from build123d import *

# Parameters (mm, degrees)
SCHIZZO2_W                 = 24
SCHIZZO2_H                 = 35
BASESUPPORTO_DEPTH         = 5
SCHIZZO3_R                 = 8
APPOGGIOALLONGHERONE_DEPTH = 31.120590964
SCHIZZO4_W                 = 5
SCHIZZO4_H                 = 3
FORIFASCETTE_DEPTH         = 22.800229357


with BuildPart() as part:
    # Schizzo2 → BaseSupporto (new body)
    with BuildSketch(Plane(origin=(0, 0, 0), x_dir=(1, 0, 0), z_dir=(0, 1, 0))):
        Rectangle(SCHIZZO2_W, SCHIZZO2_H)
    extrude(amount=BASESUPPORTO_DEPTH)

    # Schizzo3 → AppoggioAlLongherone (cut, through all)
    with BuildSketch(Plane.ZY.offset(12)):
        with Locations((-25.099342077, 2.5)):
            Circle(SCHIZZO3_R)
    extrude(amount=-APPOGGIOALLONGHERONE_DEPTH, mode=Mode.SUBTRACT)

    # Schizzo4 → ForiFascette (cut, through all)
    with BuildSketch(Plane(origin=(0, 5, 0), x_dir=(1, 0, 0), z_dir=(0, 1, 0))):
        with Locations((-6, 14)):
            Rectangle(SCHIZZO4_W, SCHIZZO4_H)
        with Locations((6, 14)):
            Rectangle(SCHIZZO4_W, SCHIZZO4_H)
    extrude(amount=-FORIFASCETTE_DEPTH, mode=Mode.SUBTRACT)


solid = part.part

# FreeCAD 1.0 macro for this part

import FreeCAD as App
import Part
import Sketcher
from FreeCAD import Vector


def add_polygon(sketch, points):
    """Adds a closed chain of lines whose ends are joined by coincident constraints."""
    first, n = sketch.GeometryCount, len(points)
    for a, b in zip(points, points[1:] + points[:1]):
        sketch.addGeometry(Part.LineSegment(App.Vector(*a, 0), App.Vector(*b, 0)), False)
    for i in range(n):
        sketch.addConstraint(Sketcher.Constraint("Coincident", first + i, 2, first + (i + 1) % n, 1))

doc = App.newDocument("Part")
body = doc.addObject("PartDesign::Body", "Body")

# Sketch on XZ plane
sketch1 = body.newObject("Sketcher::SketchObject", "Sketch")
sketch1.AttachmentSupport = (doc.getObject("XZ_Plane"), [""])
sketch1.MapMode = "FlatFace"
add_polygon(sketch1, [(-12, -18), (-12, 18), (12, 18), (12, -18)])  # lines 0-3
sketch1.addConstraint([
    Sketcher.Constraint("Vertical", 0),
    Sketcher.Constraint("Horizontal", 1),
    Sketcher.Constraint("Vertical", 2),
    Sketcher.Constraint("Horizontal", 3),
    Sketcher.Constraint("Symmetric", 0, 2, 2, 2, -1, 1),
    Sketcher.Constraint("DistanceX", 1, 1, 1, 2, 24.0),
    Sketcher.Constraint("DistanceY", 0, 1, 0, 2, 35.0),
])
pad1 = body.newObject("PartDesign::Pad", "Pad")
pad1.Profile = sketch1
pad1.Length = 5
pad1.Reversed = True

# Sketch on YZ plane
sketch2 = body.newObject("Sketcher::SketchObject", "Sketch001")
sketch2.AttachmentSupport = (doc.getObject("YZ_Plane"), [""])
sketch2.MapMode = "FlatFace"
sketch2.AttachmentOffset = App.Placement(Vector(0, 0, -12), App.Rotation())
sketch2.addGeometry(Part.Circle(Vector(2, -25, 0), Vector(0, 0, 1), 8), False)
sketch2.addConstraint([
    Sketcher.Constraint("Diameter", 0, 16.0),
    Sketcher.Constraint("DistanceX", -1, 1, 0, 3, 2.5),
    Sketcher.Constraint("DistanceY", 0, 3, -1, 1, 25.099342),
])
pocket1 = body.newObject("PartDesign::Pocket", "Pocket")
pocket1.Profile = sketch2
pocket1.Type = "ThroughAll"
pocket1.Reversed = True

# Sketch on XZ plane
sketch3 = body.newObject("Sketcher::SketchObject", "Sketch002")
sketch3.AttachmentSupport = (doc.getObject("XZ_Plane"), [""])
sketch3.MapMode = "FlatFace"
sketch3.AttachmentOffset = App.Placement(Vector(0, 0, -5), App.Rotation())
add_polygon(sketch3, [(-8.5, -15.5), (-8.5, -12.5), (-3.5, -12.5), (-3.5, -15.5)])  # lines 0-3
add_polygon(sketch3, [(3.5, -15.5), (3.5, -12.5), (8.5, -12.5), (8.5, -15.5)])  # lines 4-7
sketch3.addConstraint([
    Sketcher.Constraint("Vertical", 0),
    Sketcher.Constraint("Horizontal", 1),
    Sketcher.Constraint("Vertical", 2),
    Sketcher.Constraint("Horizontal", 3),
    Sketcher.Constraint("Vertical", 4),
    Sketcher.Constraint("Horizontal", 5),
    Sketcher.Constraint("Vertical", 6),
    Sketcher.Constraint("Horizontal", 7),
    Sketcher.Constraint("Symmetric", 1, 2, 4, 2, -2),
    Sketcher.Constraint("Symmetric", 3, 2, 6, 2, -2),
    Sketcher.Constraint("DistanceX", 1, 1, 1, 2, 5.0),
    Sketcher.Constraint("DistanceY", 0, 1, 0, 2, 3.0),
    Sketcher.Constraint("DistanceX", 1, 2, 4, 2, 7.0),
    Sketcher.Constraint("DistanceY", 0, 2, -1, 1, 12.5),
])
pocket2 = body.newObject("PartDesign::Pocket", "Pocket001")
pocket2.Profile = sketch3
pocket2.Type = "ThroughAll"
pocket2.Reversed = True

doc.recompute()
